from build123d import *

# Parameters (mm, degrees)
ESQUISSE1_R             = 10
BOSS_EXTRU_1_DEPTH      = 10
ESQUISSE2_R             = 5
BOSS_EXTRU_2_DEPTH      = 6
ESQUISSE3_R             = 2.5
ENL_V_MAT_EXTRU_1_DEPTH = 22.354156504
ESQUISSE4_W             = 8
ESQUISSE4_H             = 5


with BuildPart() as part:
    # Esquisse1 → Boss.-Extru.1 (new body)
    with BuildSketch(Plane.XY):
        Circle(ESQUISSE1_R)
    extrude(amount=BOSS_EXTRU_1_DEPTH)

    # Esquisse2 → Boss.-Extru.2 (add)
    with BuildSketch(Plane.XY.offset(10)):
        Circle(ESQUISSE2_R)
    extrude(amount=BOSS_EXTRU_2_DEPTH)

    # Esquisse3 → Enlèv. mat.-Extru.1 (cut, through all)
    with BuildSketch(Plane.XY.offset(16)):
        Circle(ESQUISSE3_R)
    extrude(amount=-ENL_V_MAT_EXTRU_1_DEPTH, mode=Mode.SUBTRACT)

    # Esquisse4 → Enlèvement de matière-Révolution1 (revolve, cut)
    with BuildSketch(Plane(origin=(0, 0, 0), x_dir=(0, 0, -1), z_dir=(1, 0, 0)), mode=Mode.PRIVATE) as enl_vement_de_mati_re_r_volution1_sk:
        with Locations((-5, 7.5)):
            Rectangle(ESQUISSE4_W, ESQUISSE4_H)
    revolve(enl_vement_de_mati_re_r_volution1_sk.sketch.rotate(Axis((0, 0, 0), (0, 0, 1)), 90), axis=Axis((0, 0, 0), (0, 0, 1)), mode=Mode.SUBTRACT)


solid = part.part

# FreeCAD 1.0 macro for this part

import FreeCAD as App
import Part
import Sketcher


def add_polygon(sketch, points):
    """Adds a closed chain of lines whose ends are joined by coincident constraints."""
    first, n = sketch.GeometryCount, len(points)
    for a, b in zip(points, points[1:] + points[:1]):
        sketch.addGeometry(Part.LineSegment(App.Vector(*a, 0), App.Vector(*b, 0)), False)
    for i in range(n):
        sketch.addConstraint(Sketcher.Constraint("Coincident", first + i, 2, first + (i + 1) % n, 1))

doc = App.newDocument("Part")
body = doc.addObject("PartDesign::Body", "Body")

# Sketch on XY plane
sketch1 = body.newObject("Sketcher::SketchObject", "Sketch")
sketch1.AttachmentSupport = (doc.getObject("XY_Plane"), [""])
sketch1.MapMode = "FlatFace"
sketch1.addGeometry(Part.Circle(App.Vector(0, 0, 0), App.Vector(0, 0, 1), 10), False)
sketch1.addConstraint(Sketcher.Constraint("Coincident", 0, 3, -1, 1))
sketch1.addConstraint(Sketcher.Constraint("Diameter", 0, 20.0))
pad1 = body.newObject("PartDesign::Pad", "Pad")
pad1.Profile = sketch1
pad1.Length = 10

# Sketch on XY plane
sketch2 = body.newObject("Sketcher::SketchObject", "Sketch001")
sketch2.AttachmentSupport = (doc.getObject("XY_Plane"), [""])
sketch2.MapMode = "FlatFace"
sketch2.AttachmentOffset = App.Placement(App.Vector(0, 0, 10), App.Rotation())
sketch2.addGeometry(Part.Circle(App.Vector(0, 0, 0), App.Vector(0, 0, 1), 5), False)
sketch2.addConstraint(Sketcher.Constraint("Coincident", 0, 3, -1, 1))
sketch2.addConstraint(Sketcher.Constraint("Diameter", 0, 10.0))
pad2 = body.newObject("PartDesign::Pad", "Pad001")
pad2.Profile = sketch2
pad2.Length = 6

# Sketch on XY plane
sketch3 = body.newObject("Sketcher::SketchObject", "Sketch002")
sketch3.AttachmentSupport = (doc.getObject("XY_Plane"), [""])
sketch3.MapMode = "FlatFace"
sketch3.AttachmentOffset = App.Placement(App.Vector(0, 0, 16), App.Rotation())
sketch3.addGeometry(Part.Circle(App.Vector(0, 0, 0), App.Vector(0, 0, 1), 2.5), False)
sketch3.addConstraint(Sketcher.Constraint("Coincident", 0, 3, -1, 1))
sketch3.addConstraint(Sketcher.Constraint("Diameter", 0, 5.0))
pocket1 = body.newObject("PartDesign::Pocket", "Pocket")
pocket1.Profile = sketch3
pocket1.Type = "ThroughAll"

# Sketch on YZ plane
sketch4 = body.newObject("Sketcher::SketchObject", "Sketch003")
sketch4.AttachmentSupport = (doc.getObject("YZ_Plane"), [""])
sketch4.MapMode = "FlatFace"
add_polygon(sketch4, [(10, 9), (5, 9), (5, 1), (10, 1)])  # lines 0-3
sketch4.addConstraint(Sketcher.Constraint("Horizontal", 0))
sketch4.addConstraint(Sketcher.Constraint("Vertical", 1))
sketch4.addConstraint(Sketcher.Constraint("Horizontal", 2))
sketch4.addConstraint(Sketcher.Constraint("Vertical", 3))
sketch4.addConstraint(Sketcher.Constraint("DistanceX", 0, 2, 0, 1, 5.0))
sketch4.addConstraint(Sketcher.Constraint("DistanceY", 1, 2, 1, 1, 8.0))
sketch4.addConstraint(Sketcher.Constraint("DistanceX", -1, 1, 0, 2, 5.0))
sketch4.addConstraint(Sketcher.Constraint("DistanceY", -1, 1, 0, 2, 9.0))
groove = body.newObject("PartDesign::Groove", "Groove")
groove.Profile = sketch4
groove.ReferenceAxis = (sketch4, ["V_Axis"])
groove.Angle = 360

doc.recompute()
